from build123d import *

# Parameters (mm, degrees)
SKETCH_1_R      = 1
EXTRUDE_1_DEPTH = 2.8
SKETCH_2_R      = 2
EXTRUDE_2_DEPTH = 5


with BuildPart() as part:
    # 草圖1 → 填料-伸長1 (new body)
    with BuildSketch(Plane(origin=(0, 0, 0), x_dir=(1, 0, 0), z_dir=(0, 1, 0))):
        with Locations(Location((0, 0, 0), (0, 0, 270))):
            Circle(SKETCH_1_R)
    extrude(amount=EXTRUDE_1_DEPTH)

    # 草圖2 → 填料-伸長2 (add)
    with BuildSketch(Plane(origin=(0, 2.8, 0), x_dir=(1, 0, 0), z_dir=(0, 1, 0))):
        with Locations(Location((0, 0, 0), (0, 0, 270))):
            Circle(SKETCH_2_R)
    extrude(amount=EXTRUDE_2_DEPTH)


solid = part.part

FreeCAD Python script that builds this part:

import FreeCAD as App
import Part
import Sketcher

V = App.Vector

doc = App.newDocument("Part")
params = doc.addObject("Spreadsheet::Sheet", "Params")
for row, (alias, value) in enumerate([
    ("sketch1_diameter", "2 mm"),
    ("pad1_length", "2.8 mm"),
    ("sketch2_diameter", "4 mm"),
    ("pad2_length", "5 mm"),
], start=1):
    params.set(f"A{row}", alias)
    params.set(f"B{row}", "=" + value)
    params.setAlias(f"B{row}", alias)

body = doc.addObject("PartDesign::Body", "Body")

sketch1 = doc.addObject("Sketcher::SketchObject", "Sketch")
body.addObject(sketch1)
sketch1.AttachmentSupport = (doc.XZ_Plane, [""])
sketch1.MapMode = "FlatFace"
sketch1.addGeometry(Part.Circle(V(0, 0, 0), V(0, 0, 1), 1), False)
sketch1.addConstraint([
    Sketcher.Constraint("Coincident", 0, 3, -1, 1),
    Sketcher.Constraint("Diameter", 0, 2.0),
])
sketch1.setExpression("Constraints[1]", "Params.sketch1_diameter")
pad1 = doc.addObject("PartDesign::Pad", "Pad")
body.addObject(pad1)
pad1.Profile = sketch1
pad1.setExpression("Length", "Params.pad1_length")
pad1.Reversed = True

sketch2 = doc.addObject("Sketcher::SketchObject", "Sketch001")
body.addObject(sketch2)
sketch2.AttachmentSupport = (doc.XZ_Plane, [""])
sketch2.MapMode = "FlatFace"
sketch2.AttachmentOffset = App.Placement(V(0, 0, -2.8), App.Rotation())
sketch2.addGeometry(Part.Circle(V(0, 0, 0), V(0, 0, 1), 2), False)
sketch2.addConstraint([
    Sketcher.Constraint("Coincident", 0, 3, -1, 1),
    Sketcher.Constraint("Diameter", 0, 4.0),
])
sketch2.setExpression("Constraints[1]", "Params.sketch2_diameter")
pad2 = doc.addObject("PartDesign::Pad", "Pad001")
body.addObject(pad2)
pad2.Profile = sketch2
pad2.setExpression("Length", "Params.pad2_length")
pad2.Reversed = True

doc.recompute()
